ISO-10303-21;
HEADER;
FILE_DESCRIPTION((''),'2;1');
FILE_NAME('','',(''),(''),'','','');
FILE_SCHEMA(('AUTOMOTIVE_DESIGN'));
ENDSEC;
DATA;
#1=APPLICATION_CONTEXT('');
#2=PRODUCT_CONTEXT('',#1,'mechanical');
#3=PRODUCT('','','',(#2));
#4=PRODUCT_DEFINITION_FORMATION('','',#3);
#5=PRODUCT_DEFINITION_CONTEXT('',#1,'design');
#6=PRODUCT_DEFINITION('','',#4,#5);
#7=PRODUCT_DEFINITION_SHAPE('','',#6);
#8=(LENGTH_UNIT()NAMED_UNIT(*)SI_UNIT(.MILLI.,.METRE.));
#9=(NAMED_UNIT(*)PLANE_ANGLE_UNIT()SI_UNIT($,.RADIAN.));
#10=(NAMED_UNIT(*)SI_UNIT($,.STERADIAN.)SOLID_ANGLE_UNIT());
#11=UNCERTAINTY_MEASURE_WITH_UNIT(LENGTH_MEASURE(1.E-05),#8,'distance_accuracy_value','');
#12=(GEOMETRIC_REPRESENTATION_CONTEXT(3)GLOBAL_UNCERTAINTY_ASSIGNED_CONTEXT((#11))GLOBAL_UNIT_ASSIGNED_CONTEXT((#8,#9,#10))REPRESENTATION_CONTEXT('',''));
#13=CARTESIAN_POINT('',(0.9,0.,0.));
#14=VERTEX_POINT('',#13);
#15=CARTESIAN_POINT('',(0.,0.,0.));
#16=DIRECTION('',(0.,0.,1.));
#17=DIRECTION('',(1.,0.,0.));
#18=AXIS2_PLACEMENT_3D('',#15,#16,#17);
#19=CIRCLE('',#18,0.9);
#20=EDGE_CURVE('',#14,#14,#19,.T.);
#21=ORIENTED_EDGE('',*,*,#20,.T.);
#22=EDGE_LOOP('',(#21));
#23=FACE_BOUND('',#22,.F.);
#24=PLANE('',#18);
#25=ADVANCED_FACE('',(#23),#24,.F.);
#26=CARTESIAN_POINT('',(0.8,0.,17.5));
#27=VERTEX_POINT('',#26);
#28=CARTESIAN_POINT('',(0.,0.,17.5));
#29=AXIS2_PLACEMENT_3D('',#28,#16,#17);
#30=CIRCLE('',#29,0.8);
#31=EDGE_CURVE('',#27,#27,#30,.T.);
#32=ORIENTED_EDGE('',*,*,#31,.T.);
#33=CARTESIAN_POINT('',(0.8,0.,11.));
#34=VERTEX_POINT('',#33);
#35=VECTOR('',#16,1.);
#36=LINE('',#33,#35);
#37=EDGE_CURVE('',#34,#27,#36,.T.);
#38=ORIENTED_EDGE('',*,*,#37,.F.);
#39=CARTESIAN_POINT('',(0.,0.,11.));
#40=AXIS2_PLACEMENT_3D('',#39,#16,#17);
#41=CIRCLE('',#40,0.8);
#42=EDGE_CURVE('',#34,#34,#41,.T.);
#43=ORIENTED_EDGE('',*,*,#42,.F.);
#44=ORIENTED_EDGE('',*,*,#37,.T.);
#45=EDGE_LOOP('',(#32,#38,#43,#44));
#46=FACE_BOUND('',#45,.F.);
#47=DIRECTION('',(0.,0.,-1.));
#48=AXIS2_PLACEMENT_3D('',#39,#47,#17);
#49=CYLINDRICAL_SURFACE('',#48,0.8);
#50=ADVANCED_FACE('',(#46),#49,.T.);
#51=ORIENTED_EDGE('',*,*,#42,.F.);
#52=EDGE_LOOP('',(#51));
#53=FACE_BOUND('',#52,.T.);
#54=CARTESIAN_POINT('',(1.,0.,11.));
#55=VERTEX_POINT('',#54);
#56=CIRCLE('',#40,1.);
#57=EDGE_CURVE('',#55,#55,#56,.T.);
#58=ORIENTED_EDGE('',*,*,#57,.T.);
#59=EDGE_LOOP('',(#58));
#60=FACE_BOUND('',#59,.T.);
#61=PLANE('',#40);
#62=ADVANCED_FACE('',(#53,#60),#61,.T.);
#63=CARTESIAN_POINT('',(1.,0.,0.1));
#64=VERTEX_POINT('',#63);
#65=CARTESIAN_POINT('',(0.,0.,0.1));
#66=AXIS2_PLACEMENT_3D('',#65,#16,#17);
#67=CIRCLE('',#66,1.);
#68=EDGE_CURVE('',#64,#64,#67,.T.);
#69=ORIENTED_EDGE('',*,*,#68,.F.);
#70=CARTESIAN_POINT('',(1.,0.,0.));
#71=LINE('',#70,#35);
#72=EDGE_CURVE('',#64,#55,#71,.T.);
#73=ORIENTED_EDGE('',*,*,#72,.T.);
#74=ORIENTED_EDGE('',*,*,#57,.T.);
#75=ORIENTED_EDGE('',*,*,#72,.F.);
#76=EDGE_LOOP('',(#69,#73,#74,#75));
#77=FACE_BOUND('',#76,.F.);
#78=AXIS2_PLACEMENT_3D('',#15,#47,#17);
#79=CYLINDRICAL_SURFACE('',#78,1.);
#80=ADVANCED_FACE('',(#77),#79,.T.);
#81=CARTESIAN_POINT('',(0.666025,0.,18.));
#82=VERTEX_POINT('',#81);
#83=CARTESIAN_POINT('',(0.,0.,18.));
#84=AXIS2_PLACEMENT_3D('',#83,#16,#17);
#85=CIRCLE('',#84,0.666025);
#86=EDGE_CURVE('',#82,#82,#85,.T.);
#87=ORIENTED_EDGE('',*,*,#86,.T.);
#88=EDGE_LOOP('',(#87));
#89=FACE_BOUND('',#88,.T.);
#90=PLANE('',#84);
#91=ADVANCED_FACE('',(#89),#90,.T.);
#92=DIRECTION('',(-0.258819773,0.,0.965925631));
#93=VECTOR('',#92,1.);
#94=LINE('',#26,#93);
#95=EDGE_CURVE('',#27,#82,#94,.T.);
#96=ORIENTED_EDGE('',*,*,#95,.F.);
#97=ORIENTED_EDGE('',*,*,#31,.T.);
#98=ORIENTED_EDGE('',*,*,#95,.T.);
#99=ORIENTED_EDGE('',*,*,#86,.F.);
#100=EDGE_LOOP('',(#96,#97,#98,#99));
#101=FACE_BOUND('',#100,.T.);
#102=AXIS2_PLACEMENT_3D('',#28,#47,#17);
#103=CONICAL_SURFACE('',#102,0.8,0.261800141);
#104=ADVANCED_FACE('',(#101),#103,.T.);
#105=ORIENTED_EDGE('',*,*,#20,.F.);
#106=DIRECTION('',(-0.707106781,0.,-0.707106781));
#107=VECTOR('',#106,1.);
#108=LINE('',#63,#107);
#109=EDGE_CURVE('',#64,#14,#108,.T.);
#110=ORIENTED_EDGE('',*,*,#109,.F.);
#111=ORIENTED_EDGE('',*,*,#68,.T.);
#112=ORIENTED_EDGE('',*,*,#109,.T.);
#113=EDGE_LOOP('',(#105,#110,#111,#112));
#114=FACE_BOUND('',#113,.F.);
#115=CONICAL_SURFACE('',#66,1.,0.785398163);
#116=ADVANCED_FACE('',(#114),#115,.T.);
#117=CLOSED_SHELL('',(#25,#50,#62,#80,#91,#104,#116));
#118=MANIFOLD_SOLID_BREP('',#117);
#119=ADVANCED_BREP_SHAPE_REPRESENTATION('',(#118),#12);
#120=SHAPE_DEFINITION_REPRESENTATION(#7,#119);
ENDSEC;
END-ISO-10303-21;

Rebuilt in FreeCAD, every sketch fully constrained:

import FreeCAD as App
import Part
import Sketcher


def edges_at(feature, points):
    """Names of the edges that pass closest to the given points."""
    edges = feature.Shape.Edges
    near = lambda p: min(range(len(edges)), key=lambda i: edges[i].distToShape(Part.Vertex(*p))[0])
    return sorted({f"Edge{near(p) + 1}" for p in points})

doc = App.newDocument("Part")
body = doc.addObject("PartDesign::Body", "Body")

# Sketch on XY plane
sketch1 = body.newObject("Sketcher::SketchObject", "Sketch")
sketch1.AttachmentSupport = (doc.getObject("XY_Plane"), [""])
sketch1.MapMode = "FlatFace"
sketch1.addGeometry(Part.Circle(App.Vector(0, 0, 0), App.Vector(0, 0, 1), 1), False)
sketch1.addConstraint([
    Sketcher.Constraint("Coincident", 0, 3, -1, 1),
    Sketcher.Constraint("Diameter", 0, 2.0),
])
pad1 = body.newObject("PartDesign::Pad", "Pad")
pad1.Profile = sketch1
pad1.Length = 11

# Sketch on XY plane
sketch2 = body.newObject("Sketcher::SketchObject", "Sketch001")
sketch2.AttachmentSupport = (doc.getObject("XY_Plane"), [""])
sketch2.MapMode = "FlatFace"
sketch2.AttachmentOffset = App.Placement(App.Vector(0, 0, 11), App.Rotation())
sketch2.addGeometry(Part.Circle(App.Vector(0, 0, 0), App.Vector(0, 0, 1), 0.8), False)
sketch2.addConstraint([
    Sketcher.Constraint("Coincident", 0, 3, -1, 1),
    Sketcher.Constraint("Diameter", 0, 1.6),
])
pad2 = body.newObject("PartDesign::Pad", "Pad001")
pad2.Profile = sketch2
pad2.Length = 7
doc.recompute()

chamfer = body.newObject("PartDesign::Chamfer", "Chamfer")
chamfer.Base = (pad2, edges_at(pad2, [(-1, 0, 0)]))
chamfer.Size = 0.1
doc.recompute()

chamfer2 = body.newObject("PartDesign::Chamfer", "Chamfer001")
chamfer2.Base = (chamfer, edges_at(chamfer, [(-0.8, 0, 18)]))
chamfer2.ChamferType = "Two distances"
chamfer2.Size = 0.5
chamfer2.Size2 = 0.133975

doc.recompute()
